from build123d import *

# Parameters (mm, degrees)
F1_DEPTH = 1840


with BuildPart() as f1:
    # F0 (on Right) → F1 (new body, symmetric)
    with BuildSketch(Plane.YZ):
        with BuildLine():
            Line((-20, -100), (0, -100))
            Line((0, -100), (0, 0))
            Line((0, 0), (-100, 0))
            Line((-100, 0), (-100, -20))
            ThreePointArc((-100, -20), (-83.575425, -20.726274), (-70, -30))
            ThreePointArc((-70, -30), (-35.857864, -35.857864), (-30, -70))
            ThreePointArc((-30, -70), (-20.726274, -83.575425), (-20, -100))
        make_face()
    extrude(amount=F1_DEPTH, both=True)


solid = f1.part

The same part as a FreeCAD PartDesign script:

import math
import FreeCAD as App
import Part
import Sketcher
Q = App.Units.Quantity

doc = App.newDocument("Part")
body = doc.addObject("PartDesign::Body", "Body")

sketch1 = body.newObject("Sketcher::SketchObject", "Sketch")
sketch1.AttachmentSupport = (doc.getObject("YZ_Plane"), [""])
sketch1.MapMode = "FlatFace"
sketch1.addGeometry([
    Part.LineSegment(App.Vector(-20, -100, 0), App.Vector(0, -100, 0)),
    Part.LineSegment(App.Vector(0, -100, 0), App.Vector(0, 0, 0)),
    Part.LineSegment(App.Vector(0, 0, 0), App.Vector(-100, 0, 0)),
    Part.LineSegment(App.Vector(-100, 0, 0), App.Vector(-100, -20, 0)),
    Part.ArcOfCircle(Part.Circle(App.Vector(-93, -49, 0), App.Vector(0, 0, 1), 30), math.radians(40), math.radians(103)),
    Part.ArcOfCircle(Part.Circle(App.Vector(-57, -57, 0), App.Vector(0, 0, 1), 30), math.radians(-26), math.radians(116)),
    Part.ArcOfCircle(Part.Circle(App.Vector(-49, -93, 0), App.Vector(0, 0, 1), 30), math.radians(-13), math.radians(50)),
], False)
sketch1.addConstraint([
    Sketcher.Constraint("Coincident", 0, 2, 1, 1),
    Sketcher.Constraint("Coincident", 1, 2, 2, 1),
    Sketcher.Constraint("Coincident", 2, 2, 3, 1),
    Sketcher.Constraint("Coincident", 3, 2, 4, 2),
    Sketcher.Constraint("Coincident", 4, 1, 5, 2),
    Sketcher.Constraint("Coincident", 5, 1, 6, 2),
    Sketcher.Constraint("Coincident", 6, 1, 0, 1),
    Sketcher.Constraint("Horizontal", 0),
    Sketcher.Constraint("Vertical", 1),
    Sketcher.Constraint("Horizontal", 2),
    Sketcher.Constraint("Vertical", 3),
    Sketcher.Constraint("Coincident", 1, 2, -1, 1),
    Sketcher.Constraint("Equal", 4, 5),
    Sketcher.Constraint("Equal", 5, 6),
    Sketcher.Constraint("Equal", 2, 1),
    Sketcher.Constraint("Equal", 0, 3),
    Sketcher.Constraint("Radius", 4, Q("29.999999 mm")),
    Sketcher.Constraint("DistanceX", 0, 1, 0, 2, Q("20 mm")),
    Sketcher.Constraint("DistanceX", 2, 2, 2, 1, Q("100 mm")),
    Sketcher.Constraint("DistanceX", 4, 1, -1, 1, Q("70 mm")),
    Sketcher.Constraint("DistanceY", 4, 1, -1, 1, Q("30 mm")),
    Sketcher.Constraint("DistanceX", 5, 1, -1, 1, Q("30 mm")),
    Sketcher.Constraint("DistanceY", 5, 1, -1, 1, Q("70 mm")),
])
pad1 = body.newObject("PartDesign::Pad", "Pad")
pad1.Profile = sketch1
pad1.Length = 3680
pad1.Midplane = True

doc.recompute()
